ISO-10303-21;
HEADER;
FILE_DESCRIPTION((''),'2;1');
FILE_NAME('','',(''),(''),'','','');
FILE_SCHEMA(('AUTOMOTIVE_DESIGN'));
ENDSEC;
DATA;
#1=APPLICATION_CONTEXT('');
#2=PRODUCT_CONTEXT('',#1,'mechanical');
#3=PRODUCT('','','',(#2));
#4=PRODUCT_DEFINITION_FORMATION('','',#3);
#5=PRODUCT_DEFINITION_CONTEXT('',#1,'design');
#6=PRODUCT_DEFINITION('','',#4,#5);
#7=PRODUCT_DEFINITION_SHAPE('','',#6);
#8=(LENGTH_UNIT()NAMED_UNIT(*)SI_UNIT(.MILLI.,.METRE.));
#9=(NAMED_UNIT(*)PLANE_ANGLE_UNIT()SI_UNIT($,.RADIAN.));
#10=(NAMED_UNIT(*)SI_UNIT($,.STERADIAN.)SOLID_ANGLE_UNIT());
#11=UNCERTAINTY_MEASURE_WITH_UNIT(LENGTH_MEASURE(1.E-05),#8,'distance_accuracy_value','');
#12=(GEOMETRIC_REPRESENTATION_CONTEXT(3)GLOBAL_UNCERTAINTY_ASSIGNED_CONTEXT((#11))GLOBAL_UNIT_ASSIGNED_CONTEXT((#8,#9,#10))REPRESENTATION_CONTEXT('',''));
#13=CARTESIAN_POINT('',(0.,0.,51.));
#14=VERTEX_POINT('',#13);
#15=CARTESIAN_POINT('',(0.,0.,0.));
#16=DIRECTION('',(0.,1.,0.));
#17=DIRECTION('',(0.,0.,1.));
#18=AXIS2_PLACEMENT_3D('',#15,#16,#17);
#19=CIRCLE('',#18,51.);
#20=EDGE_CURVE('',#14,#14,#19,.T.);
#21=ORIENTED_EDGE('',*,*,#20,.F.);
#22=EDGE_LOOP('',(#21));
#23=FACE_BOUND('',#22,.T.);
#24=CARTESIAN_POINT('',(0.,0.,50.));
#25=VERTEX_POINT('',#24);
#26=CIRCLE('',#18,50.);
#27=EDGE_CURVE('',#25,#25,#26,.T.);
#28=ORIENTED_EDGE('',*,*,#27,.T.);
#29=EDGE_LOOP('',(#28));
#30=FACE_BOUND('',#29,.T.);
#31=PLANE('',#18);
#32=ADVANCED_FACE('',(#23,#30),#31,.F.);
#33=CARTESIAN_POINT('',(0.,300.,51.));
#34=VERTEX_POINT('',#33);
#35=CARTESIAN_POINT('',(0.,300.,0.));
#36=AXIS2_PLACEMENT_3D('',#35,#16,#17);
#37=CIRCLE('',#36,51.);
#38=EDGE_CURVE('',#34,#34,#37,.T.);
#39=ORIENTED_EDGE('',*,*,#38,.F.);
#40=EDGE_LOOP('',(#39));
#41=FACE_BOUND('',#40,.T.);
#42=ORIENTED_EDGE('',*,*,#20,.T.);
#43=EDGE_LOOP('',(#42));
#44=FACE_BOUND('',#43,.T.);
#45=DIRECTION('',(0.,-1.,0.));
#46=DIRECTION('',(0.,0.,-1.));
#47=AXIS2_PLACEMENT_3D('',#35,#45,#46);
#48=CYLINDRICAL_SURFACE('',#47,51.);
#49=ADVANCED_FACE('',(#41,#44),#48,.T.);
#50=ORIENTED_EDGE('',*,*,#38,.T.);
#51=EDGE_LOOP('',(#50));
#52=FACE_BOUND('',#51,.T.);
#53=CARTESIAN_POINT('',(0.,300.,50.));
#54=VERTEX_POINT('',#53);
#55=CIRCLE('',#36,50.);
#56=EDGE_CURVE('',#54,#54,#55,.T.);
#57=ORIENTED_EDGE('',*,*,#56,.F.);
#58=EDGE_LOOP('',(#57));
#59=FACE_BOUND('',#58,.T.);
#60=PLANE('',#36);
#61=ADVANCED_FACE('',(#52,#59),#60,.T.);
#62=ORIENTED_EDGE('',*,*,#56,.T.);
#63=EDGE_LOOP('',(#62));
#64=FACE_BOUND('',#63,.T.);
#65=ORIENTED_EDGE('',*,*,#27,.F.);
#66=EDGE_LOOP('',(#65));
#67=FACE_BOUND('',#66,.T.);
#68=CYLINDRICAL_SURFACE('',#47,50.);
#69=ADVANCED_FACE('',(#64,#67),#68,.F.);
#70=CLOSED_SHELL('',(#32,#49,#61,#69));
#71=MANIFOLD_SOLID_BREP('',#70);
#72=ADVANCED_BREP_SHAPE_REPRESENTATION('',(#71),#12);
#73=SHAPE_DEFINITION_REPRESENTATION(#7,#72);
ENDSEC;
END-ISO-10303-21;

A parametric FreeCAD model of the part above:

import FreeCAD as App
import Part
import Sketcher
from FreeCAD import Vector
Q = App.Units.Quantity

doc = App.newDocument("Part")
body = doc.addObject("PartDesign::Body", "Body")

# Sketch on XZ plane
sketch1 = body.newObject("Sketcher::SketchObject", "Sketch")
sketch1.AttachmentSupport = (doc.getObject("XZ_Plane"), [""])
sketch1.MapMode = "FlatFace"
sketch1.addGeometry([
    Part.Circle(Vector(0, 0, 0), Vector(0, 0, 1), 51),
    Part.Circle(Vector(0, 0, 0), Vector(0, 0, 1), 50),
], False)
sketch1.addConstraint([
    Sketcher.Constraint("Coincident", 0, 3, -1, 1),
    Sketcher.Constraint("Coincident", 1, 3, -1, 1),
    Sketcher.Constraint("Diameter", 0, Q("102 mm")),
    Sketcher.Constraint("Diameter", 1, Q("100 mm")),
])
pad1 = body.newObject("PartDesign::Pad", "Pad")
pad1.Profile = sketch1
pad1.Length = 300
pad1.Reversed = True

doc.recompute()
